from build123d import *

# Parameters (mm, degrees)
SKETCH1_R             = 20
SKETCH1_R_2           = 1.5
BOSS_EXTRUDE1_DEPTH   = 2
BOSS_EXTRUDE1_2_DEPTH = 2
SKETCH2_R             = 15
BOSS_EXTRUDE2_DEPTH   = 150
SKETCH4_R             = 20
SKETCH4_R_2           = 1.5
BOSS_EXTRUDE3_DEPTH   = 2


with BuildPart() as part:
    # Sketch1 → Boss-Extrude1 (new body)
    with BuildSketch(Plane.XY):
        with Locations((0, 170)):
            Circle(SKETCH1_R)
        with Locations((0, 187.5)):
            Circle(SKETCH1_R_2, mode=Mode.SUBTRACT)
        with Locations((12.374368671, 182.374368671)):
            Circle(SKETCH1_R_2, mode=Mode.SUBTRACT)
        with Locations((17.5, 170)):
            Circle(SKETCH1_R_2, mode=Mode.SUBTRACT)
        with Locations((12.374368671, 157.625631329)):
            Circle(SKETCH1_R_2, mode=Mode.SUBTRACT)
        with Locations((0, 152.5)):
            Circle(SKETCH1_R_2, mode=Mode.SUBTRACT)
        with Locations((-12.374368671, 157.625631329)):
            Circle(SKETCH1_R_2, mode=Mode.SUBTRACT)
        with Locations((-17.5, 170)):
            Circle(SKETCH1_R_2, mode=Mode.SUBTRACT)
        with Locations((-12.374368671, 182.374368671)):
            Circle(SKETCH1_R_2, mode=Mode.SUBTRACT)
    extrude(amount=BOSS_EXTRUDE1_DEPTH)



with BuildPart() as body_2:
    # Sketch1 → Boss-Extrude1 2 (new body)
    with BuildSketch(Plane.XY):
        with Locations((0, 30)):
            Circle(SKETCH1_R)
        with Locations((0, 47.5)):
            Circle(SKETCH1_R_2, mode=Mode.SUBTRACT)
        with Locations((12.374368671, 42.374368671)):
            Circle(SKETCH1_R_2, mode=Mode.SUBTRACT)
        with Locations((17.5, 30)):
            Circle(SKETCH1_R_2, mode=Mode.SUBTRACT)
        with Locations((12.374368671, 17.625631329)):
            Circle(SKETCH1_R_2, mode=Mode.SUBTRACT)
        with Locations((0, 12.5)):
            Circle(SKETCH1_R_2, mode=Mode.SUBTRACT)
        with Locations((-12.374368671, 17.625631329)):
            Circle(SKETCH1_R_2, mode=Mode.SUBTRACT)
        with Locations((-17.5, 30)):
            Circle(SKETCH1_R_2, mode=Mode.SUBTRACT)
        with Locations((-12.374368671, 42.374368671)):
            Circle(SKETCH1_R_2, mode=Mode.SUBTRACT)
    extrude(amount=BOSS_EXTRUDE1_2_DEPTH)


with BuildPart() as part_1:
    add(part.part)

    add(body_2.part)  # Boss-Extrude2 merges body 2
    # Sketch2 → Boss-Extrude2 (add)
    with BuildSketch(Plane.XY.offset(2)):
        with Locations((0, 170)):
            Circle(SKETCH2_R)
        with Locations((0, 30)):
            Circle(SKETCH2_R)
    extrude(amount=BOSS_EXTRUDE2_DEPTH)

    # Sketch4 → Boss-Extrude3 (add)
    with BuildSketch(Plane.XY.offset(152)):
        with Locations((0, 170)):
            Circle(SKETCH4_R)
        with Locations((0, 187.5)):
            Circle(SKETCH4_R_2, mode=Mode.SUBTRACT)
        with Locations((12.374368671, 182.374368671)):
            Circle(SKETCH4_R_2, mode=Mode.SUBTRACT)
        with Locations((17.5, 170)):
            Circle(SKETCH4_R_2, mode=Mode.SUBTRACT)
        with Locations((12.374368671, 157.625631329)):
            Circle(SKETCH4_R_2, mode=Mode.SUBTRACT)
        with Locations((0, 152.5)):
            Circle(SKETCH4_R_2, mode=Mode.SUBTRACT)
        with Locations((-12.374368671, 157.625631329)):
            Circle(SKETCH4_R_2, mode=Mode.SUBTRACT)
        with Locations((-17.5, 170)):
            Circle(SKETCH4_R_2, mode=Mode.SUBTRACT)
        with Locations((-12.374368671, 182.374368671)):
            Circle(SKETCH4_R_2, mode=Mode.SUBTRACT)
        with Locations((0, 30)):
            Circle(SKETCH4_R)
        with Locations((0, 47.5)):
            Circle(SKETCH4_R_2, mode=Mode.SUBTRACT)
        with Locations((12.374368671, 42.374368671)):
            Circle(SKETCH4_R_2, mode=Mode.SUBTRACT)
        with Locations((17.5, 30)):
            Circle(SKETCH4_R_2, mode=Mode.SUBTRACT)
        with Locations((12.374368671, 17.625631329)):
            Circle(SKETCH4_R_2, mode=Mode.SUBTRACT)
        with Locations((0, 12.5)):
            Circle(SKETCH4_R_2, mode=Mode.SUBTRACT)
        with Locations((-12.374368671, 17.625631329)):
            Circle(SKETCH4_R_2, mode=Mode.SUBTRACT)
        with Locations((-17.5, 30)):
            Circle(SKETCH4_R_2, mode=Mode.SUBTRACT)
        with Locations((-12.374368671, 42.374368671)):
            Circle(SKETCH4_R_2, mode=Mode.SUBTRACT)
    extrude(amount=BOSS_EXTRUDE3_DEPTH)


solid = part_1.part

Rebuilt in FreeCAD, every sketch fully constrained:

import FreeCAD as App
import Part
import Sketcher
Q = App.Units.Quantity

doc = App.newDocument("Part")
body = doc.addObject("PartDesign::Body", "Body")

# Sketch on XY plane
sketch1 = body.newObject("Sketcher::SketchObject", "Sketch")
sketch1.AttachmentSupport = (doc.getObject("XY_Plane"), [""])
sketch1.MapMode = "FlatFace"
sketch1.addGeometry(Part.Circle(App.Vector(0, 170, 0), App.Vector(0, 0, 1), 20), False)
sketch1.addGeometry(Part.Circle(App.Vector(-12.4, 157.6, 0), App.Vector(0, 0, 1), 1.5), False)
sketch1.addGeometry(Part.Circle(App.Vector(0, 152.5, 0), App.Vector(0, 0, 1), 1.5), False)
sketch1.addGeometry(Part.Circle(App.Vector(12.4, 157.6, 0), App.Vector(0, 0, 1), 1.5), False)
sketch1.addGeometry(Part.Circle(App.Vector(-17.5, 170, 0), App.Vector(0, 0, 1), 1.5), False)
sketch1.addGeometry(Part.Circle(App.Vector(-12.4, 182.4, 0), App.Vector(0, 0, 1), 1.5), False)
sketch1.addGeometry(Part.Circle(App.Vector(17.5, 170, 0), App.Vector(0, 0, 1), 1.5), False)
sketch1.addGeometry(Part.Circle(App.Vector(0, 187.5, 0), App.Vector(0, 0, 1), 1.5), False)
sketch1.addGeometry(Part.Circle(App.Vector(12.4, 182.4, 0), App.Vector(0, 0, 1), 1.5), False)
sketch1.addConstraint(Sketcher.Constraint("Equal", 1, 2))
sketch1.addConstraint(Sketcher.Constraint("Equal", 2, 3))
sketch1.addConstraint(Sketcher.Constraint("Equal", 3, 4))
sketch1.addConstraint(Sketcher.Constraint("Equal", 4, 5))
sketch1.addConstraint(Sketcher.Constraint("Equal", 5, 6))
sketch1.addConstraint(Sketcher.Constraint("Equal", 6, 7))
sketch1.addConstraint(Sketcher.Constraint("Equal", 7, 8))
sketch1.addConstraint(Sketcher.Constraint("Symmetric", 1, 3, 3, 3, -2))
sketch1.addConstraint(Sketcher.Constraint("Symmetric", 4, 3, 6, 3, -2))
sketch1.addConstraint(Sketcher.Constraint("Symmetric", 5, 3, 8, 3, -2))
sketch1.addConstraint(Sketcher.Constraint("PointOnObject", 0, 3, -2))
sketch1.addConstraint(Sketcher.Constraint("PointOnObject", 2, 3, -2))
sketch1.addConstraint(Sketcher.Constraint("PointOnObject", 7, 3, -2))
sketch1.addConstraint(Sketcher.Constraint("Horizontal", 0, 3, 4, 3))
sketch1.addConstraint(Sketcher.Constraint("Vertical", 1, 3, 5, 3))
sketch1.addConstraint(Sketcher.Constraint("Diameter", 0, Q("40 mm")))
sketch1.addConstraint(Sketcher.Constraint("Diameter", 1, Q("3 mm")))
sketch1.addConstraint(Sketcher.Constraint("DistanceY", -1, 1, 0, 3, Q("170 mm")))
sketch1.addConstraint(Sketcher.Constraint("DistanceY", -1, 1, 2, 3, Q("152.5 mm")))
sketch1.addConstraint(Sketcher.Constraint("DistanceX", 4, 3, -1, 1, Q("17.5 mm")))
sketch1.addConstraint(Sketcher.Constraint("DistanceY", -1, 1, 7, 3, Q("187.5 mm")))
sketch1.addConstraint(Sketcher.Constraint("DistanceX", 1, 3, -1, 1, Q("12.374369 mm")))
sketch1.addConstraint(Sketcher.Constraint("DistanceY", -1, 1, 1, 3, Q("157.625631 mm")))
sketch1.addConstraint(Sketcher.Constraint("DistanceY", -1, 1, 5, 3, Q("182.374369 mm")))
pad1 = body.newObject("PartDesign::Pad", "Pad")
pad1.Profile = sketch1
pad1.Length = 2
body2 = doc.addObject("PartDesign::Body", "Body001")

# Sketch on XY plane
sketch2 = body2.newObject("Sketcher::SketchObject", "Sketch001")
sketch2.AttachmentSupport = (doc.getObject("XY_Plane001"), [""])
sketch2.MapMode = "FlatFace"
sketch2.addGeometry(Part.Circle(App.Vector(0, 30, 0), App.Vector(0, 0, 1), 20), False)
sketch2.addGeometry(Part.Circle(App.Vector(-12.4, 17.6, 0), App.Vector(0, 0, 1), 1.5), False)
sketch2.addGeometry(Part.Circle(App.Vector(0, 12.5, 0), App.Vector(0, 0, 1), 1.5), False)
sketch2.addGeometry(Part.Circle(App.Vector(12.4, 17.6, 0), App.Vector(0, 0, 1), 1.5), False)
sketch2.addGeometry(Part.Circle(App.Vector(-17.5, 30, 0), App.Vector(0, 0, 1), 1.5), False)
sketch2.addGeometry(Part.Circle(App.Vector(-12.4, 42.4, 0), App.Vector(0, 0, 1), 1.5), False)
sketch2.addGeometry(Part.Circle(App.Vector(17.5, 30, 0), App.Vector(0, 0, 1), 1.5), False)
sketch2.addGeometry(Part.Circle(App.Vector(0, 47.5, 0), App.Vector(0, 0, 1), 1.5), False)
sketch2.addGeometry(Part.Circle(App.Vector(12.4, 42.4, 0), App.Vector(0, 0, 1), 1.5), False)
sketch2.addConstraint(Sketcher.Constraint("Equal", 1, 2))
sketch2.addConstraint(Sketcher.Constraint("Equal", 2, 3))
sketch2.addConstraint(Sketcher.Constraint("Equal", 3, 4))
sketch2.addConstraint(Sketcher.Constraint("Equal", 4, 5))
sketch2.addConstraint(Sketcher.Constraint("Equal", 5, 6))
sketch2.addConstraint(Sketcher.Constraint("Equal", 6, 7))
sketch2.addConstraint(Sketcher.Constraint("Equal", 7, 8))
sketch2.addConstraint(Sketcher.Constraint("Symmetric", 1, 3, 3, 3, -2))
sketch2.addConstraint(Sketcher.Constraint("Symmetric", 4, 3, 6, 3, -2))
sketch2.addConstraint(Sketcher.Constraint("Symmetric", 5, 3, 8, 3, -2))
sketch2.addConstraint(Sketcher.Constraint("PointOnObject", 0, 3, -2))
sketch2.addConstraint(Sketcher.Constraint("PointOnObject", 2, 3, -2))
sketch2.addConstraint(Sketcher.Constraint("PointOnObject", 7, 3, -2))
sketch2.addConstraint(Sketcher.Constraint("Horizontal", 0, 3, 4, 3))
sketch2.addConstraint(Sketcher.Constraint("Vertical", 1, 3, 5, 3))
sketch2.addConstraint(Sketcher.Constraint("Diameter", 0, Q("40 mm")))
sketch2.addConstraint(Sketcher.Constraint("Diameter", 1, Q("3 mm")))
sketch2.addConstraint(Sketcher.Constraint("DistanceY", -1, 1, 0, 3, Q("30 mm")))
sketch2.addConstraint(Sketcher.Constraint("DistanceY", -1, 1, 2, 3, Q("12.5 mm")))
sketch2.addConstraint(Sketcher.Constraint("DistanceX", 4, 3, -1, 1, Q("17.5 mm")))
sketch2.addConstraint(Sketcher.Constraint("DistanceY", -1, 1, 7, 3, Q("47.5 mm")))
sketch2.addConstraint(Sketcher.Constraint("DistanceX", 1, 3, -1, 1, Q("12.374369 mm")))
sketch2.addConstraint(Sketcher.Constraint("DistanceY", -1, 1, 1, 3, Q("17.625631 mm")))
sketch2.addConstraint(Sketcher.Constraint("DistanceY", -1, 1, 5, 3, Q("42.374369 mm")))
pad2 = body2.newObject("PartDesign::Pad", "Pad001")
pad2.Profile = sketch2
pad2.Length = 2
body.AllowCompound = True
doc.recompute()

boolean = body.newObject("PartDesign::Boolean", "Boolean")
boolean.Type = "Fuse"
boolean.addObjects([body2])

# Sketch on XY plane
sketch3 = body.newObject("Sketcher::SketchObject", "Sketch002")
sketch3.AttachmentSupport = (doc.getObject("XY_Plane"), [""])
sketch3.MapMode = "FlatFace"
sketch3.AttachmentOffset = App.Placement(App.Vector(0, 0, 2), App.Rotation())
sketch3.addGeometry(Part.Circle(App.Vector(0, 170, 0), App.Vector(0, 0, 1), 15), False)
sketch3.addGeometry(Part.Circle(App.Vector(0, 30, 0), App.Vector(0, 0, 1), 15), False)
sketch3.addConstraint(Sketcher.Constraint("Equal", 0, 1))
sketch3.addConstraint(Sketcher.Constraint("PointOnObject", 0, 3, -2))
sketch3.addConstraint(Sketcher.Constraint("PointOnObject", 1, 3, -2))
sketch3.addConstraint(Sketcher.Constraint("Diameter", 0, Q("30 mm")))
sketch3.addConstraint(Sketcher.Constraint("DistanceY", -1, 1, 0, 3, Q("170 mm")))
sketch3.addConstraint(Sketcher.Constraint("DistanceY", -1, 1, 1, 3, Q("30 mm")))
pad3 = body.newObject("PartDesign::Pad", "Pad002")
pad3.Profile = sketch3
pad3.Length = 150

# Sketch on XY plane
sketch4 = body.newObject("Sketcher::SketchObject", "Sketch003")
sketch4.AttachmentSupport = (doc.getObject("XY_Plane"), [""])
sketch4.MapMode = "FlatFace"
sketch4.AttachmentOffset = App.Placement(App.Vector(0, 0, 152), App.Rotation())
sketch4.addGeometry(Part.Circle(App.Vector(0, 170, 0), App.Vector(0, 0, 1), 20), False)
sketch4.addGeometry(Part.Circle(App.Vector(-12.4, 157.6, 0), App.Vector(0, 0, 1), 1.5), False)
sketch4.addGeometry(Part.Circle(App.Vector(0, 152.5, 0), App.Vector(0, 0, 1), 1.5), False)
sketch4.addGeometry(Part.Circle(App.Vector(12.4, 157.6, 0), App.Vector(0, 0, 1), 1.5), False)
sketch4.addGeometry(Part.Circle(App.Vector(-17.5, 170, 0), App.Vector(0, 0, 1), 1.5), False)
sketch4.addGeometry(Part.Circle(App.Vector(-12.4, 182.4, 0), App.Vector(0, 0, 1), 1.5), False)
sketch4.addGeometry(Part.Circle(App.Vector(17.5, 170, 0), App.Vector(0, 0, 1), 1.5), False)
sketch4.addGeometry(Part.Circle(App.Vector(0, 187.5, 0), App.Vector(0, 0, 1), 1.5), False)
sketch4.addGeometry(Part.Circle(App.Vector(12.4, 182.4, 0), App.Vector(0, 0, 1), 1.5), False)
sketch4.addGeometry(Part.Circle(App.Vector(0, 30, 0), App.Vector(0, 0, 1), 20), False)
sketch4.addGeometry(Part.Circle(App.Vector(-12.4, 17.6, 0), App.Vector(0, 0, 1), 1.5), False)
sketch4.addGeometry(Part.Circle(App.Vector(0, 12.5, 0), App.Vector(0, 0, 1), 1.5), False)
sketch4.addGeometry(Part.Circle(App.Vector(12.4, 17.6, 0), App.Vector(0, 0, 1), 1.5), False)
sketch4.addGeometry(Part.Circle(App.Vector(-17.5, 30, 0), App.Vector(0, 0, 1), 1.5), False)
sketch4.addGeometry(Part.Circle(App.Vector(-12.4, 42.4, 0), App.Vector(0, 0, 1), 1.5), False)
sketch4.addGeometry(Part.Circle(App.Vector(17.5, 30, 0), App.Vector(0, 0, 1), 1.5), False)
sketch4.addGeometry(Part.Circle(App.Vector(0, 47.5, 0), App.Vector(0, 0, 1), 1.5), False)
sketch4.addGeometry(Part.Circle(App.Vector(12.4, 42.4, 0), App.Vector(0, 0, 1), 1.5), False)
sketch4.addConstraint(Sketcher.Constraint("Equal", 1, 2))
sketch4.addConstraint(Sketcher.Constraint("Equal", 2, 3))
sketch4.addConstraint(Sketcher.Constraint("Equal", 3, 4))
sketch4.addConstraint(Sketcher.Constraint("Equal", 4, 5))
sketch4.addConstraint(Sketcher.Constraint("Equal", 5, 6))
sketch4.addConstraint(Sketcher.Constraint("Equal", 6, 7))
sketch4.addConstraint(Sketcher.Constraint("Equal", 7, 8))
sketch4.addConstraint(Sketcher.Constraint("Equal", 0, 9))
sketch4.addConstraint(Sketcher.Constraint("Equal", 8, 10))
sketch4.addConstraint(Sketcher.Constraint("Equal", 10, 11))
sketch4.addConstraint(Sketcher.Constraint("Equal", 11, 12))
sketch4.addConstraint(Sketcher.Constraint("Equal", 12, 13))
sketch4.addConstraint(Sketcher.Constraint("Equal", 13, 14))
sketch4.addConstraint(Sketcher.Constraint("Equal", 14, 15))
sketch4.addConstraint(Sketcher.Constraint("Equal", 15, 16))
sketch4.addConstraint(Sketcher.Constraint("Equal", 16, 17))
sketch4.addConstraint(Sketcher.Constraint("Symmetric", 1, 3, 3, 3, -2))
sketch4.addConstraint(Sketcher.Constraint("Symmetric", 4, 3, 6, 3, -2))
sketch4.addConstraint(Sketcher.Constraint("Symmetric", 5, 3, 8, 3, -2))
sketch4.addConstraint(Sketcher.Constraint("Symmetric", 10, 3, 12, 3, -2))
sketch4.addConstraint(Sketcher.Constraint("Symmetric", 13, 3, 15, 3, -2))
sketch4.addConstraint(Sketcher.Constraint("Symmetric", 14, 3, 17, 3, -2))
sketch4.addConstraint(Sketcher.Constraint("PointOnObject", 0, 3, -2))
sketch4.addConstraint(Sketcher.Constraint("PointOnObject", 2, 3, -2))
sketch4.addConstraint(Sketcher.Constraint("PointOnObject", 7, 3, -2))
sketch4.addConstraint(Sketcher.Constraint("PointOnObject", 9, 3, -2))
sketch4.addConstraint(Sketcher.Constraint("PointOnObject", 11, 3, -2))
sketch4.addConstraint(Sketcher.Constraint("PointOnObject", 16, 3, -2))
sketch4.addConstraint(Sketcher.Constraint("Horizontal", 0, 3, 4, 3))
sketch4.addConstraint(Sketcher.Constraint("Horizontal", 9, 3, 13, 3))
sketch4.addConstraint(Sketcher.Constraint("Vertical", 1, 3, 5, 3))
sketch4.addConstraint(Sketcher.Constraint("Vertical", 5, 3, 10, 3))
sketch4.addConstraint(Sketcher.Constraint("Vertical", 4, 3, 13, 3))
sketch4.addConstraint(Sketcher.Constraint("Vertical", 10, 3, 14, 3))
sketch4.addConstraint(Sketcher.Constraint("Diameter", 0, Q("40 mm")))
sketch4.addConstraint(Sketcher.Constraint("Diameter", 1, Q("3 mm")))
sketch4.addConstraint(Sketcher.Constraint("DistanceY", -1, 1, 0, 3, Q("170 mm")))
sketch4.addConstraint(Sketcher.Constraint("DistanceY", -1, 1, 9, 3, Q("30 mm")))
sketch4.addConstraint(Sketcher.Constraint("DistanceY", 10, 3, 1, 3, Q("140 mm")))
sketch4.addConstraint(Sketcher.Constraint("DistanceY", 11, 3, 2, 3, Q("140 mm")))
sketch4.addConstraint(Sketcher.Constraint("DistanceY", -1, 1, 2, 3, Q("152.5 mm")))
sketch4.addConstraint(Sketcher.Constraint("DistanceX", 4, 3, -1, 1, Q("17.5 mm")))
sketch4.addConstraint(Sketcher.Constraint("DistanceY", -1, 1, 7, 3, Q("187.5 mm")))
sketch4.addConstraint(Sketcher.Constraint("DistanceY", -1, 1, 16, 3, Q("47.5 mm")))
sketch4.addConstraint(Sketcher.Constraint("DistanceX", 1, 3, -1, 1, Q("12.374369 mm")))
sketch4.addConstraint(Sketcher.Constraint("DistanceY", -1, 1, 1, 3, Q("157.625631 mm")))
sketch4.addConstraint(Sketcher.Constraint("DistanceY", -1, 1, 5, 3, Q("182.374369 mm")))
sketch4.addConstraint(Sketcher.Constraint("DistanceY", -1, 1, 14, 3, Q("42.374369 mm")))
pad4 = body.newObject("PartDesign::Pad", "Pad003")
pad4.Profile = sketch4
pad4.Length = 2

doc.recompute()
